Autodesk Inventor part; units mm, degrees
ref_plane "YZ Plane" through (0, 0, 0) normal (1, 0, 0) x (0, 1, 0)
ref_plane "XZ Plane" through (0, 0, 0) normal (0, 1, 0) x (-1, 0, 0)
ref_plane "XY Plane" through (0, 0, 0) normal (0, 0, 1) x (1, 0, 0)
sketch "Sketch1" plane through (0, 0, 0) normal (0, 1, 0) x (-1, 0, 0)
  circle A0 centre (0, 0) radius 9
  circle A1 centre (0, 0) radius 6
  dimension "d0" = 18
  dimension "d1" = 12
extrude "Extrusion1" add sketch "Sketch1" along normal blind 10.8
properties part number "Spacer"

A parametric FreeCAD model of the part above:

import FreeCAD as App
import Part
import Sketcher
from FreeCAD import Vector

doc = App.newDocument("Part")
params = doc.addObject("Spreadsheet::Sheet", "Params")
for row, (alias, value) in enumerate([
    ("sketch1_diameter", "18 mm"),
    ("sketch1_diameter2", "12 mm"),
    ("pad1_length", "10.8 mm"),
], start=1):
    params.set(f"A{row}", alias)
    params.set(f"B{row}", "=" + value)
    params.setAlias(f"B{row}", alias)

body = doc.addObject("PartDesign::Body", "Body")

# Sketch on XZ plane
sketch1 = body.newObject("Sketcher::SketchObject", "Sketch")
sketch1.AttachmentSupport = (doc.getObject("XZ_Plane"), [""])
sketch1.MapMode = "FlatFace"
sketch1.addGeometry([
    Part.Circle(Vector(0, 0, 0), Vector(0, 0, 1), 9),
    Part.Circle(Vector(0, 0, 0), Vector(0, 0, 1), 6),
], False)
sketch1.addConstraint([
    Sketcher.Constraint("Coincident", 0, 3, -1, 1),
    Sketcher.Constraint("Coincident", 1, 3, -1, 1),
    Sketcher.Constraint("Diameter", 0, 18.0),
    Sketcher.Constraint("Diameter", 1, 12.0),
])
sketch1.setExpression("Constraints[2]", "Params.sketch1_diameter")
sketch1.setExpression("Constraints[3]", "Params.sketch1_diameter2")
pad1 = body.newObject("PartDesign::Pad", "Pad")
pad1.Profile = sketch1
pad1.setExpression("Length", "Params.pad1_length")
pad1.Reversed = True

doc.recompute()
